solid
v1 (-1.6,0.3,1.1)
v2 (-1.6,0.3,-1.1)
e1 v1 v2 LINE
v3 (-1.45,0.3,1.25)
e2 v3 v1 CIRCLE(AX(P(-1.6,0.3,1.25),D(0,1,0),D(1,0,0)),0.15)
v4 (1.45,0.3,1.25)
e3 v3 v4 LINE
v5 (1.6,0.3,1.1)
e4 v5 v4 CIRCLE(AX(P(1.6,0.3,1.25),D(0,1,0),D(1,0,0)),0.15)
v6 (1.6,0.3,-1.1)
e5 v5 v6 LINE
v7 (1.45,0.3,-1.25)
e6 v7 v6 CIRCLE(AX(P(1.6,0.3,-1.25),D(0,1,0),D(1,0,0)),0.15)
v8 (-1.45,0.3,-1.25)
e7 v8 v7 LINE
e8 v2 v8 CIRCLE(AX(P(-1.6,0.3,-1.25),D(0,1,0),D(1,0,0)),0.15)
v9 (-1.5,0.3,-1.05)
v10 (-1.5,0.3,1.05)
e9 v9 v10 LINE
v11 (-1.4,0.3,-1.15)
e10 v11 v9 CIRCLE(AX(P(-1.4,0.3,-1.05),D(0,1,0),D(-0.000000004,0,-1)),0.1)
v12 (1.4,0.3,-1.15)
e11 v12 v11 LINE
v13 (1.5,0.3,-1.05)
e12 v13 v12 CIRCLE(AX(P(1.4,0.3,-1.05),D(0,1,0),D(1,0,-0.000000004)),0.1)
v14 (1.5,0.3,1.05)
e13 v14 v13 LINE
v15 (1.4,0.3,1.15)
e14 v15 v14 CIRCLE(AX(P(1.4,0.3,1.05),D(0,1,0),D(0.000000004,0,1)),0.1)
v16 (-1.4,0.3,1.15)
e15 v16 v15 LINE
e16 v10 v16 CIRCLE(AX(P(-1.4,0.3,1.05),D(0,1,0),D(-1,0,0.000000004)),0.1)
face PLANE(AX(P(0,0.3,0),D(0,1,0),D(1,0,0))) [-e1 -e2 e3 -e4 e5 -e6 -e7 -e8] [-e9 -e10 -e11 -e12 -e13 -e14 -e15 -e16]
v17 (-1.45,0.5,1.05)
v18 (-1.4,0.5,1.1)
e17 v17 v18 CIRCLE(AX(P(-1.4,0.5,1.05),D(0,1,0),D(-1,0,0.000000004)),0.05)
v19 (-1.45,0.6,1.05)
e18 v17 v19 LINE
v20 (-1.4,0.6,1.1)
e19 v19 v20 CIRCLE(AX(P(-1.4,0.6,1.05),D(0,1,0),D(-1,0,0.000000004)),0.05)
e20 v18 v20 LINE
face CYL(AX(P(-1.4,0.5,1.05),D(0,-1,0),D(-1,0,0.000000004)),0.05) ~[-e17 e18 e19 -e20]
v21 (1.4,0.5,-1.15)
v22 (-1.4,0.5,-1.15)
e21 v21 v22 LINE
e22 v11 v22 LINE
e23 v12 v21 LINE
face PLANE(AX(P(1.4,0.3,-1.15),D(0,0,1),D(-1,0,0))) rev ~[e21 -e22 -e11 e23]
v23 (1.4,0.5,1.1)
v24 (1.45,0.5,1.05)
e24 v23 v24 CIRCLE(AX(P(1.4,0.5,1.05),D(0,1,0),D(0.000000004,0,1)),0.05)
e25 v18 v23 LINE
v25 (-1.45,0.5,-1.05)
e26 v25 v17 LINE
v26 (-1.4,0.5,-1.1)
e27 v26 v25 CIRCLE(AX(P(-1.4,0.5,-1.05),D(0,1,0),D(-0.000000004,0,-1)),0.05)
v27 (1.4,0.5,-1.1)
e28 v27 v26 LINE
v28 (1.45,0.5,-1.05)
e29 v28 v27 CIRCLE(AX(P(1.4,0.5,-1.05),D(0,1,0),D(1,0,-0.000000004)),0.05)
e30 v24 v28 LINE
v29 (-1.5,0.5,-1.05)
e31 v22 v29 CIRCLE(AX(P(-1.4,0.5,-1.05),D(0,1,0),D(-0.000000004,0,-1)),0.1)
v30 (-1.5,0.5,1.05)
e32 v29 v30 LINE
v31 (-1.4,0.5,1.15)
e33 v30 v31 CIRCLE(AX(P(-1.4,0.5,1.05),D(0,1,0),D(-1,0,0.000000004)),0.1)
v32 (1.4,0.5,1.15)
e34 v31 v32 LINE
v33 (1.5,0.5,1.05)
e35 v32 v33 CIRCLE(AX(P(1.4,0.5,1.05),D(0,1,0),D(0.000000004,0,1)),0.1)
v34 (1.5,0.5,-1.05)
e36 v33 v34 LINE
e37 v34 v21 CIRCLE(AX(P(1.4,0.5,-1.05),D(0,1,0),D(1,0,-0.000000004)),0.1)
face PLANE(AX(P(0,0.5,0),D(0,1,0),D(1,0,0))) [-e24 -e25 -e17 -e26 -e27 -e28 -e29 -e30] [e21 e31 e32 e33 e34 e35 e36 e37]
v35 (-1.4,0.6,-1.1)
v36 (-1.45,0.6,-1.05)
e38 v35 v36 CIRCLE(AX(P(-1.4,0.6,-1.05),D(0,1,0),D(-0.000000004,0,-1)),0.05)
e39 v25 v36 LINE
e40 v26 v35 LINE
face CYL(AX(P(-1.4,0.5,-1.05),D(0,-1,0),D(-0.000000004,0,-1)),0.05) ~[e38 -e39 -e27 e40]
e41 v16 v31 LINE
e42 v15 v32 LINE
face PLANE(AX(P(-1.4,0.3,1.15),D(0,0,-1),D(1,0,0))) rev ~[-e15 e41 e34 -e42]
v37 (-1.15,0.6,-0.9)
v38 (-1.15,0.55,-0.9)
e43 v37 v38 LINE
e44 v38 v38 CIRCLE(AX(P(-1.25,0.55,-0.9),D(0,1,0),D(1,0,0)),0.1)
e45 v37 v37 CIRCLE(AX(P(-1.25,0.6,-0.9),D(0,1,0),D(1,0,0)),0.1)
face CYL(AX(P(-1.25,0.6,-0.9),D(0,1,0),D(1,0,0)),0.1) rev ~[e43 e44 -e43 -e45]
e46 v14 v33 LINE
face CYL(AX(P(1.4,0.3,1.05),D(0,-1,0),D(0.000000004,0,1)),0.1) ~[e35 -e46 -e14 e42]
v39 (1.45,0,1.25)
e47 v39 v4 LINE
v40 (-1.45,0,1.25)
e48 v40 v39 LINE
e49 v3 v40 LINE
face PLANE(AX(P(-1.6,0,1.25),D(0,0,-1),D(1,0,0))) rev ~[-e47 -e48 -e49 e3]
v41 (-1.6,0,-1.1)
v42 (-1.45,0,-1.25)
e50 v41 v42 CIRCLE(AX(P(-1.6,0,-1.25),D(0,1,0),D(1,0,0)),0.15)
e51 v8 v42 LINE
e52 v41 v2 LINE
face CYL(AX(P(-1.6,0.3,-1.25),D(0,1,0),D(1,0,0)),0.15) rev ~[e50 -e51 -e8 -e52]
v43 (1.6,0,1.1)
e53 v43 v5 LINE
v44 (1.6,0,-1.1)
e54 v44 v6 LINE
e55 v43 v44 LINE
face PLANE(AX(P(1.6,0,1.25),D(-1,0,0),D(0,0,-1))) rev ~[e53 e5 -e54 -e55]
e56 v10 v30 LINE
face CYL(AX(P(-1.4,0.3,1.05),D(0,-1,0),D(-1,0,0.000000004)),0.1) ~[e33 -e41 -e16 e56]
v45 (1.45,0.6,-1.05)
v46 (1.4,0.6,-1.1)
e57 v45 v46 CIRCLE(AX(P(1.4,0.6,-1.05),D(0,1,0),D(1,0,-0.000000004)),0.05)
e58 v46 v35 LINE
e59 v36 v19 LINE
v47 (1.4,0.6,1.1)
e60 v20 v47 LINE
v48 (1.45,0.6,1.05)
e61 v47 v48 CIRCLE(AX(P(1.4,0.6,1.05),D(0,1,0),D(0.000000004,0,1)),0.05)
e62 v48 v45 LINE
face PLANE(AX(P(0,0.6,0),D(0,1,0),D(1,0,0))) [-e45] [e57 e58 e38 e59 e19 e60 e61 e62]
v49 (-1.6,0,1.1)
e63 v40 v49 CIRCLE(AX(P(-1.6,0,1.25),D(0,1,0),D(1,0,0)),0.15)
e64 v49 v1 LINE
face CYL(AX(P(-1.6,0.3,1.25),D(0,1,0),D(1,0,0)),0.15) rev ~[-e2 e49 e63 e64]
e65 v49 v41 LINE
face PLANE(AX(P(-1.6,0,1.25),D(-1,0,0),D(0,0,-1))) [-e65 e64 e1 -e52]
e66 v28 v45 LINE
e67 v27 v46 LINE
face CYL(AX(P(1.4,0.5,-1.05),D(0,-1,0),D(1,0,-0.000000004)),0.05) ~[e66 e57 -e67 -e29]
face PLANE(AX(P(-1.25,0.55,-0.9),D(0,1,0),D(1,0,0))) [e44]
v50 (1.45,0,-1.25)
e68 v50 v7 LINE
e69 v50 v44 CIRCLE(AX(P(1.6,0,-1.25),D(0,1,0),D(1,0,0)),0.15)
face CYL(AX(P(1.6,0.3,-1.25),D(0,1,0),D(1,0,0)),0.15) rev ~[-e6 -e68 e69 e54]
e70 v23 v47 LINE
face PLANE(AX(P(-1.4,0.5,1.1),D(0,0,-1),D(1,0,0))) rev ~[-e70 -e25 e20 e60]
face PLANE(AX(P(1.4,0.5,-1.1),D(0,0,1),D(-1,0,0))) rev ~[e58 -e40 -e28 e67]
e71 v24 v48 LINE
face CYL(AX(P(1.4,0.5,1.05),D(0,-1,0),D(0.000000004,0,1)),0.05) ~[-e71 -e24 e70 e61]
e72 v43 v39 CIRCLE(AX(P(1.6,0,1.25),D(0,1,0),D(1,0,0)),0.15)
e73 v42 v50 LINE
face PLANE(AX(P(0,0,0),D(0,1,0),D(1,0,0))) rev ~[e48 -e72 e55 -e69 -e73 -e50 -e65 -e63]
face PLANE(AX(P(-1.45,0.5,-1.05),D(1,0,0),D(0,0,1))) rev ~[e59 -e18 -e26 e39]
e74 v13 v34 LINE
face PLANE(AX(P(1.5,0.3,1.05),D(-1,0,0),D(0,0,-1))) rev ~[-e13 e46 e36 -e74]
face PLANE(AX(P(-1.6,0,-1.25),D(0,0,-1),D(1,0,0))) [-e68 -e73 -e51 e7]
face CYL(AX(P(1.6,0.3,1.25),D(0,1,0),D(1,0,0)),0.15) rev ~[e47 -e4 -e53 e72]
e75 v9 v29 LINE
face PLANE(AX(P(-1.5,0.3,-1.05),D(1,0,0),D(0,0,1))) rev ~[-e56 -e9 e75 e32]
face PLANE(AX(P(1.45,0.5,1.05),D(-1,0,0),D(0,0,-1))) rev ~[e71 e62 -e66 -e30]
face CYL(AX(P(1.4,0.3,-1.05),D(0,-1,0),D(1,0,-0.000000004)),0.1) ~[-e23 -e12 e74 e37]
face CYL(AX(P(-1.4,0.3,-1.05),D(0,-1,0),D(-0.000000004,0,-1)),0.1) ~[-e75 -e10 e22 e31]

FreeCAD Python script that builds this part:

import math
import FreeCAD as App
import Part
import Sketcher
from FreeCAD import Vector


def add_polygon(sketch, points):
    """Adds a closed chain of lines whose ends are joined by coincident constraints."""
    first, n = sketch.GeometryCount, len(points)
    for a, b in zip(points, points[1:] + points[:1]):
        sketch.addGeometry(Part.LineSegment(App.Vector(*a, 0), App.Vector(*b, 0)), False)
    for i in range(n):
        sketch.addConstraint(Sketcher.Constraint("Coincident", first + i, 2, first + (i + 1) % n, 1))

doc = App.newDocument("Part")
body = doc.addObject("PartDesign::Body", "Body")

# Sketch on XZ plane
sketch1 = body.newObject("Sketcher::SketchObject", "Sketch")
sketch1.AttachmentSupport = (doc.getObject("XZ_Plane"), [""])
sketch1.MapMode = "FlatFace"
add_polygon(sketch1, [(-1.6, -1.2), (-1.6, 1.2), (1.6, 1.2), (1.6, -1.2)])  # lines 0-3
sketch1.addConstraint(Sketcher.Constraint("Vertical", 0))
sketch1.addConstraint(Sketcher.Constraint("Horizontal", 1))
sketch1.addConstraint(Sketcher.Constraint("Vertical", 2))
sketch1.addConstraint(Sketcher.Constraint("Horizontal", 3))
sketch1.addConstraint(Sketcher.Constraint("Symmetric", 0, 2, 2, 2, -1, 1))
sketch1.addConstraint(Sketcher.Constraint("DistanceX", 1, 1, 1, 2, 3.2))
sketch1.addConstraint(Sketcher.Constraint("DistanceY", 0, 1, 0, 2, 2.5))
pad1 = body.newObject("PartDesign::Pad", "Pad")
pad1.Profile = sketch1
pad1.Length = 0.3
pad1.Reversed = True

# Sketch on XZ plane
sketch2 = body.newObject("Sketcher::SketchObject", "Sketch001")
sketch2.AttachmentSupport = (doc.getObject("XZ_Plane"), [""])
sketch2.MapMode = "FlatFace"
sketch2.AttachmentOffset = App.Placement(Vector(0, 0, -0.3), App.Rotation())
sketch2.addGeometry(Part.LineSegment(Vector(-1.4, 1.15, 0), Vector(1.4, 1.15, 0)), False)
sketch2.addGeometry(Part.ArcOfCircle(Part.Circle(Vector(1.4, 1.05, 0), Vector(0, 0, 1), 0.1), math.radians(0), math.radians(90)), False)
sketch2.addGeometry(Part.LineSegment(Vector(1.5, 1.05, 0), Vector(1.5, -1.05, 0)), False)
sketch2.addGeometry(Part.ArcOfCircle(Part.Circle(Vector(1.4, -1.05, 0), Vector(0, 0, 1), 0.1), math.radians(-90), math.radians(0)), False)
sketch2.addGeometry(Part.LineSegment(Vector(1.4, -1.15, 0), Vector(-1.4, -1.15, 0)), False)
sketch2.addGeometry(Part.ArcOfCircle(Part.Circle(Vector(-1.4, -1.05, 0), Vector(0, 0, 1), 0.1), math.radians(180), math.radians(270)), False)
sketch2.addGeometry(Part.LineSegment(Vector(-1.5, -1.05, 0), Vector(-1.5, 1.05, 0)), False)
sketch2.addGeometry(Part.ArcOfCircle(Part.Circle(Vector(-1.4, 1.05, 0), Vector(0, 0, 1), 0.1), math.radians(90), math.radians(180)), False)
sketch2.addConstraint(Sketcher.Constraint("Tangent", 0, 2, 1, 2))
sketch2.addConstraint(Sketcher.Constraint("Tangent", 1, 1, 2, 1))
sketch2.addConstraint(Sketcher.Constraint("Tangent", 2, 2, 3, 2))
sketch2.addConstraint(Sketcher.Constraint("Tangent", 3, 1, 4, 1))
sketch2.addConstraint(Sketcher.Constraint("Tangent", 4, 2, 5, 2))
sketch2.addConstraint(Sketcher.Constraint("Tangent", 5, 1, 6, 1))
sketch2.addConstraint(Sketcher.Constraint("Tangent", 6, 2, 7, 2))
sketch2.addConstraint(Sketcher.Constraint("Tangent", 7, 1, 0, 1))
sketch2.addConstraint(Sketcher.Constraint("Horizontal", 0))
sketch2.addConstraint(Sketcher.Constraint("Vertical", 2))
sketch2.addConstraint(Sketcher.Constraint("Horizontal", 4))
sketch2.addConstraint(Sketcher.Constraint("Vertical", 6))
sketch2.addConstraint(Sketcher.Constraint("Equal", 1, 3))
sketch2.addConstraint(Sketcher.Constraint("Equal", 3, 5))
sketch2.addConstraint(Sketcher.Constraint("Equal", 5, 7))
sketch2.addConstraint(Sketcher.Constraint("Symmetric", 1, 3, 5, 3, -1, 1))
sketch2.addConstraint(Sketcher.Constraint("Radius", 1, 0.1))
sketch2.addConstraint(Sketcher.Constraint("DistanceX", 0, 1, 0, 2, 2.8))
sketch2.addConstraint(Sketcher.Constraint("DistanceY", 2, 2, 2, 1, 2.1))
pad2 = body.newObject("PartDesign::Pad", "Pad001")
pad2.Profile = sketch2
pad2.Length = 0.2
pad2.Reversed = True

# Sketch on XZ plane
sketch3 = body.newObject("Sketcher::SketchObject", "Sketch002")
sketch3.AttachmentSupport = (doc.getObject("XZ_Plane"), [""])
sketch3.MapMode = "FlatFace"
sketch3.AttachmentOffset = App.Placement(Vector(0, 0, -0.5), App.Rotation())
sketch3.addGeometry(Part.LineSegment(Vector(-1.4, 1.1, 0), Vector(1.4, 1.1, 0)), False)
sketch3.addGeometry(Part.ArcOfCircle(Part.Circle(Vector(1.4, 1.05, 0), Vector(0, 0, 1), 0.05), math.radians(0), math.radians(90)), False)
sketch3.addGeometry(Part.LineSegment(Vector(1.45, 1.05, 0), Vector(1.45, -1.05, 0)), False)
sketch3.addGeometry(Part.ArcOfCircle(Part.Circle(Vector(1.4, -1.05, 0), Vector(0, 0, 1), 0.05), math.radians(-90), math.radians(0)), False)
sketch3.addGeometry(Part.LineSegment(Vector(1.4, -1.1, 0), Vector(-1.4, -1.1, 0)), False)
sketch3.addGeometry(Part.ArcOfCircle(Part.Circle(Vector(-1.4, -1.05, 0), Vector(0, 0, 1), 0.05), math.radians(180), math.radians(270)), False)
sketch3.addGeometry(Part.LineSegment(Vector(-1.45, -1.05, 0), Vector(-1.45, 1.05, 0)), False)
sketch3.addGeometry(Part.ArcOfCircle(Part.Circle(Vector(-1.4, 1.05, 0), Vector(0, 0, 1), 0.05), math.radians(90), math.radians(180)), False)
sketch3.addConstraint(Sketcher.Constraint("Tangent", 0, 2, 1, 2))
sketch3.addConstraint(Sketcher.Constraint("Tangent", 1, 1, 2, 1))
sketch3.addConstraint(Sketcher.Constraint("Tangent", 2, 2, 3, 2))
sketch3.addConstraint(Sketcher.Constraint("Tangent", 3, 1, 4, 1))
sketch3.addConstraint(Sketcher.Constraint("Tangent", 4, 2, 5, 2))
sketch3.addConstraint(Sketcher.Constraint("Tangent", 5, 1, 6, 1))
sketch3.addConstraint(Sketcher.Constraint("Tangent", 6, 2, 7, 2))
sketch3.addConstraint(Sketcher.Constraint("Tangent", 7, 1, 0, 1))
sketch3.addConstraint(Sketcher.Constraint("Horizontal", 0))
sketch3.addConstraint(Sketcher.Constraint("Vertical", 2))
sketch3.addConstraint(Sketcher.Constraint("Horizontal", 4))
sketch3.addConstraint(Sketcher.Constraint("Vertical", 6))
sketch3.addConstraint(Sketcher.Constraint("Equal", 1, 3))
sketch3.addConstraint(Sketcher.Constraint("Equal", 3, 5))
sketch3.addConstraint(Sketcher.Constraint("Equal", 5, 7))
sketch3.addConstraint(Sketcher.Constraint("Symmetric", 1, 3, 5, 3, -1, 1))
sketch3.addConstraint(Sketcher.Constraint("Radius", 1, 0.05))
sketch3.addConstraint(Sketcher.Constraint("DistanceX", 0, 1, 0, 2, 2.8))
sketch3.addConstraint(Sketcher.Constraint("DistanceY", 2, 2, 2, 1, 2.1))
pad3 = body.newObject("PartDesign::Pad", "Pad002")
pad3.Profile = sketch3
pad3.Length = 0.1
pad3.Reversed = True

# Sketch on XZ plane
sketch4 = body.newObject("Sketcher::SketchObject", "Sketch003")
sketch4.AttachmentSupport = (doc.getObject("XZ_Plane"), [""])
sketch4.MapMode = "FlatFace"
sketch4.AttachmentOffset = App.Placement(Vector(0, 0, -0.3), App.Rotation())
sketch4.addGeometry(Part.Circle(Vector(-1.6, -1.25, 0), Vector(0, 0, 1), 0.15), False)
sketch4.addGeometry(Part.Circle(Vector(1.6, -1.25, 0), Vector(0, 0, 1), 0.15), False)
sketch4.addGeometry(Part.Circle(Vector(1.6, 1.25, 0), Vector(0, 0, 1), 0.15), False)
sketch4.addGeometry(Part.Circle(Vector(-1.6, 1.25, 0), Vector(0, 0, 1), 0.15), False)
sketch4.addConstraint(Sketcher.Constraint("Equal", 0, 1))
sketch4.addConstraint(Sketcher.Constraint("Equal", 1, 2))
sketch4.addConstraint(Sketcher.Constraint("Equal", 2, 3))
sketch4.addConstraint(Sketcher.Constraint("Symmetric", 0, 3, 2, 3, -1, 1))
sketch4.addConstraint(Sketcher.Constraint("Symmetric", 1, 3, 3, 3, -1, 1))
sketch4.addConstraint(Sketcher.Constraint("Symmetric", 0, 3, 1, 3, -2))
sketch4.addConstraint(Sketcher.Constraint("Diameter", 0, 0.3))
sketch4.addConstraint(Sketcher.Constraint("DistanceX", 0, 3, -1, 1, 1.6))
sketch4.addConstraint(Sketcher.Constraint("DistanceY", 1, 3, 2, 3, 2.5))
pocket1 = body.newObject("PartDesign::Pocket", "Pocket")
pocket1.Profile = sketch4
pocket1.Type = "ThroughAll"
pocket1.Reversed = True

# Sketch on XZ plane
sketch5 = body.newObject("Sketcher::SketchObject", "Sketch004")
sketch5.AttachmentSupport = (doc.getObject("XZ_Plane"), [""])
sketch5.MapMode = "FlatFace"
sketch5.AttachmentOffset = App.Placement(Vector(0, 0, -0.6), App.Rotation())
sketch5.addGeometry(Part.Circle(Vector(-1.25, -0.9, 0), Vector(0, 0, 1), 0.1), False)
sketch5.addConstraint(Sketcher.Constraint("Diameter", 0, 0.2))
sketch5.addConstraint(Sketcher.Constraint("DistanceY", 0, 3, -1, 1, 0.9))
sketch5.addConstraint(Sketcher.Constraint("DistanceX", 0, 3, -1, 1, 1.25))
pocket2 = body.newObject("PartDesign::Pocket", "Pocket001")
pocket2.Profile = sketch5
pocket2.Length = 0.05
pocket2.Reversed = True

doc.recompute()
